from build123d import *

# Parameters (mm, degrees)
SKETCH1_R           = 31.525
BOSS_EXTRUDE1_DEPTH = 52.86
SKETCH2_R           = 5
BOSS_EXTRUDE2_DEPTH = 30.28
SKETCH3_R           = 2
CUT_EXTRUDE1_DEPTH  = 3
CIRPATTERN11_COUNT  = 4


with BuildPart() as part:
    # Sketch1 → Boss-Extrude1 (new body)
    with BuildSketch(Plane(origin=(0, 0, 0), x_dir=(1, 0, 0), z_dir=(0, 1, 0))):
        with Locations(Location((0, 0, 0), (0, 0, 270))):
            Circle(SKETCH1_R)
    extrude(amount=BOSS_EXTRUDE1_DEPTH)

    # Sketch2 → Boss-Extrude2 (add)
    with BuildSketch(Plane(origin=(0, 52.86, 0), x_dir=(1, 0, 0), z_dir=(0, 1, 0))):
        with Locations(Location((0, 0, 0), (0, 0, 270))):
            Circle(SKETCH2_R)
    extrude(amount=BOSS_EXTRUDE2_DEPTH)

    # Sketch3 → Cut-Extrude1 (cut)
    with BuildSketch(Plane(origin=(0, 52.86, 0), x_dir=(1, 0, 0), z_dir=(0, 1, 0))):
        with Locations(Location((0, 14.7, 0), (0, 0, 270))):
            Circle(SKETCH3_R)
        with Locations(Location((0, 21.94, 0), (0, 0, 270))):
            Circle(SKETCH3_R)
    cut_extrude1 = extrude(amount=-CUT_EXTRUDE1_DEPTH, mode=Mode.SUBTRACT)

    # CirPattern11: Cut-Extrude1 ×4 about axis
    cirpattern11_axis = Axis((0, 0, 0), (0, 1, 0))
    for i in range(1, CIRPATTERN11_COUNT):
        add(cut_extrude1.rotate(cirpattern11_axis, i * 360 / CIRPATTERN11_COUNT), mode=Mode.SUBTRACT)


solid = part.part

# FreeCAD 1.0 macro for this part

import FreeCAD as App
import Part
import Sketcher

doc = App.newDocument("Part")
body = doc.addObject("PartDesign::Body", "Body")

# Sketch on XZ plane
sketch1 = body.newObject("Sketcher::SketchObject", "Sketch")
sketch1.AttachmentSupport = (doc.getObject("XZ_Plane"), [""])
sketch1.MapMode = "FlatFace"
sketch1.addGeometry(Part.Circle(App.Vector(0, 0, 0), App.Vector(0, 0, 1), 31.525), False)
sketch1.addConstraint([
    Sketcher.Constraint("Coincident", 0, 3, -1, 1),
    Sketcher.Constraint("Diameter", 0, 63.05),
])
pad1 = body.newObject("PartDesign::Pad", "Pad")
pad1.Profile = sketch1
pad1.Length = 52.86
pad1.Reversed = True

# Sketch on XZ plane
sketch2 = body.newObject("Sketcher::SketchObject", "Sketch001")
sketch2.AttachmentSupport = (doc.getObject("XZ_Plane"), [""])
sketch2.MapMode = "FlatFace"
sketch2.AttachmentOffset = App.Placement(App.Vector(0, 0, -52.86), App.Rotation())
sketch2.addGeometry(Part.Circle(App.Vector(0, 0, 0), App.Vector(0, 0, 1), 5), False)
sketch2.addConstraint([
    Sketcher.Constraint("Coincident", 0, 3, -1, 1),
    Sketcher.Constraint("Diameter", 0, 10.0),
])
pad2 = body.newObject("PartDesign::Pad", "Pad001")
pad2.Profile = sketch2
pad2.Length = 30.28
pad2.Reversed = True

# Sketch on XZ plane
sketch3 = body.newObject("Sketcher::SketchObject", "Sketch002")
sketch3.AttachmentSupport = (doc.getObject("XZ_Plane"), [""])
sketch3.MapMode = "FlatFace"
sketch3.AttachmentOffset = App.Placement(App.Vector(0, 0, -52.86), App.Rotation())
sketch3.addGeometry([
    Part.Circle(App.Vector(0, -14.7, 0), App.Vector(0, 0, 1), 2),
    Part.Circle(App.Vector(0, -21.94, 0), App.Vector(0, 0, 1), 2),
], False)
sketch3.addConstraint([
    Sketcher.Constraint("Equal", 0, 1),
    Sketcher.Constraint("PointOnObject", 0, 3, -2),
    Sketcher.Constraint("PointOnObject", 1, 3, -2),
    Sketcher.Constraint("Diameter", 0, 4.0),
    Sketcher.Constraint("DistanceY", 0, 3, -1, 1, 14.7),
    Sketcher.Constraint("DistanceY", 1, 3, -1, 1, 21.94),
])
pocket1 = body.newObject("PartDesign::Pocket", "Pocket")
pocket1.Profile = sketch3
pocket1.Length = 3
pocket1.Reversed = True
doc.recompute()

polarpattern = body.newObject("PartDesign::PolarPattern", "PolarPattern")
polarpattern.Originals = [pocket1]
polarpattern.Axis = (doc.getObject("Y_Axis"), [""])
polarpattern.Angle = 360
polarpattern.Occurrences = 4
body.Tip = polarpattern

doc.recompute()
